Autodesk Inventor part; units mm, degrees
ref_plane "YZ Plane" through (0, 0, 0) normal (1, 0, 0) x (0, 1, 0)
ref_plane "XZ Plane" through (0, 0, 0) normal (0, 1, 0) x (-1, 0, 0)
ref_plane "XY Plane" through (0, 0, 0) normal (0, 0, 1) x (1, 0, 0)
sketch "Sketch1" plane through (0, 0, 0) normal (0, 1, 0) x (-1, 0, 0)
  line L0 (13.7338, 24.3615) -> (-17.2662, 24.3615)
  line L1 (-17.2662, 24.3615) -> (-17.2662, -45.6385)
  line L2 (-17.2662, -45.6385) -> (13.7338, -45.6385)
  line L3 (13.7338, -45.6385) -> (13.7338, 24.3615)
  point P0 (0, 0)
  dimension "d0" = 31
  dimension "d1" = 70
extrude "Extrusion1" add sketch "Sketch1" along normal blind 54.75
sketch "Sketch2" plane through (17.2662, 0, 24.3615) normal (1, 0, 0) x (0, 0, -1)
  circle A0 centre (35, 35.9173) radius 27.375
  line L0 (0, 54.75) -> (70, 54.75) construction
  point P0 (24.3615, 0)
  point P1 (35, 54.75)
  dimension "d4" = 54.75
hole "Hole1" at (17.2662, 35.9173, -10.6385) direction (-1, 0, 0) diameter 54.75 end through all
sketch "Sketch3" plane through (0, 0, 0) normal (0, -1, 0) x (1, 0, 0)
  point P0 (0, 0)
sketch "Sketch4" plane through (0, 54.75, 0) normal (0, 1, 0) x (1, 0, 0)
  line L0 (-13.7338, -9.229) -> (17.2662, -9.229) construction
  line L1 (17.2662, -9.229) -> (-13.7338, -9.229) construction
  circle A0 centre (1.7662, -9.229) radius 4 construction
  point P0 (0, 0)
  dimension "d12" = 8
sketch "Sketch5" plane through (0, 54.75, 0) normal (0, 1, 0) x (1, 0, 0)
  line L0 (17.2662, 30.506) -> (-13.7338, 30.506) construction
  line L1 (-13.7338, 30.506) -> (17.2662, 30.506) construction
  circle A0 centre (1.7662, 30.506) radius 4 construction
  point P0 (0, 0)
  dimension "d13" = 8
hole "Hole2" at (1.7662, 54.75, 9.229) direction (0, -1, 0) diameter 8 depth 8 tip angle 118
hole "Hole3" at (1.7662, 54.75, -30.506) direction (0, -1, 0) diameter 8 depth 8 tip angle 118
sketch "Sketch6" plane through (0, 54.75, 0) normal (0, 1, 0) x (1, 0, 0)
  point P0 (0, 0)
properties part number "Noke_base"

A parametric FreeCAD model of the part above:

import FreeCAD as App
import Part
import Sketcher
from FreeCAD import Vector

doc = App.newDocument("Part")
body = doc.addObject("PartDesign::Body", "Body")

# Sketch on XZ plane
sketch1 = body.newObject("Sketcher::SketchObject", "Sketch")
sketch1.AttachmentSupport = (doc.getObject("XZ_Plane"), [""])
sketch1.MapMode = "FlatFace"
sketch1.addGeometry([
    Part.LineSegment(Vector(-14, -46, 0), Vector(-14, 24, 0)),
    Part.LineSegment(Vector(-14, 24, 0), Vector(17, 24, 0)),
    Part.LineSegment(Vector(17, 24, 0), Vector(17, -46, 0)),
    Part.LineSegment(Vector(17, -46, 0), Vector(-14, -46, 0)),
], False)
sketch1.addConstraint([
    Sketcher.Constraint("Coincident", 0, 2, 1, 1),
    Sketcher.Constraint("Coincident", 1, 2, 2, 1),
    Sketcher.Constraint("Coincident", 2, 2, 3, 1),
    Sketcher.Constraint("Coincident", 3, 2, 0, 1),
    Sketcher.Constraint("Vertical", 0),
    Sketcher.Constraint("Horizontal", 1),
    Sketcher.Constraint("Vertical", 2),
    Sketcher.Constraint("Horizontal", 3),
    Sketcher.Constraint("DistanceX", 1, 1, 1, 2, 31.0),
    Sketcher.Constraint("DistanceY", 0, 1, 0, 2, 70.0),
    Sketcher.Constraint("DistanceX", 0, 2, -1, 1, 13.7338),
    Sketcher.Constraint("DistanceY", -1, 1, 0, 2, 24.3615),
])
pad1 = body.newObject("PartDesign::Pad", "Pad")
pad1.Profile = sketch1
pad1.Length = 54.75
pad1.Reversed = True

# Sketch on YZ plane
sketch2 = body.newObject("Sketcher::SketchObject", "Sketch001")
sketch2.AttachmentSupport = (doc.getObject("YZ_Plane"), [""])
sketch2.MapMode = "FlatFace"
sketch2.AttachmentOffset = App.Placement(Vector(0, 0, 17.2662), App.Rotation())
sketch2.addGeometry(Part.Circle(Vector(36, -11, 0), Vector(0, 0, 1), 27), False)
sketch2.addConstraint([
    Sketcher.Constraint("Diameter", 0, 54.75),
    Sketcher.Constraint("DistanceX", -1, 1, 0, 3, 35.9173),
    Sketcher.Constraint("DistanceY", 0, 3, -1, 1, 10.6385),
])
doc.recompute()
hole = body.newObject("PartDesign::Hole", "Hole")
hole.Profile = sketch2
hole.ThreadType = "None"
hole.Diameter = 54.75
hole.DepthType = "ThroughAll"

# Sketch on XZ plane
sketch3 = body.newObject("Sketcher::SketchObject", "Sketch002")
sketch3.AttachmentSupport = (doc.getObject("XZ_Plane"), [""])
sketch3.MapMode = "FlatFace"
sketch3.AttachmentOffset = App.Placement(Vector(0, 0, -54.75), App.Rotation())
sketch3.addGeometry(Part.Circle(Vector(1.8, 9.2, 0), Vector(0, 0, 1), 4), False)
sketch3.addConstraint([
    Sketcher.Constraint("Diameter", 0, 8.0),
    Sketcher.Constraint("DistanceY", -1, 1, 0, 3, 9.229),
    Sketcher.Constraint("DistanceX", -1, 1, 0, 3, 1.7662),
])
doc.recompute()
hole2 = body.newObject("PartDesign::Hole", "Hole001")
hole2.Profile = sketch3
hole2.ThreadType = "None"
hole2.Diameter = 8
hole2.DepthType = "Dimension"
hole2.Depth = 8
hole2.DrillPoint = "Angled"
hole2.DrillPointAngle = 118
hole2.Reversed = True

# Sketch on XZ plane
sketch4 = body.newObject("Sketcher::SketchObject", "Sketch003")
sketch4.AttachmentSupport = (doc.getObject("XZ_Plane"), [""])
sketch4.MapMode = "FlatFace"
sketch4.AttachmentOffset = App.Placement(Vector(0, 0, -54.75), App.Rotation())
sketch4.addGeometry(Part.Circle(Vector(1.8, -30.5, 0), Vector(0, 0, 1), 4), False)
sketch4.addConstraint([
    Sketcher.Constraint("Diameter", 0, 8.0),
    Sketcher.Constraint("DistanceY", 0, 3, -1, 1, 30.506),
    Sketcher.Constraint("DistanceX", -1, 1, 0, 3, 1.7662),
])
doc.recompute()
hole3 = body.newObject("PartDesign::Hole", "Hole002")
hole3.Profile = sketch4
hole3.ThreadType = "None"
hole3.Diameter = 8
hole3.DepthType = "Dimension"
hole3.Depth = 8
hole3.DrillPoint = "Angled"
hole3.DrillPointAngle = 118
hole3.Reversed = True

doc.recompute()
